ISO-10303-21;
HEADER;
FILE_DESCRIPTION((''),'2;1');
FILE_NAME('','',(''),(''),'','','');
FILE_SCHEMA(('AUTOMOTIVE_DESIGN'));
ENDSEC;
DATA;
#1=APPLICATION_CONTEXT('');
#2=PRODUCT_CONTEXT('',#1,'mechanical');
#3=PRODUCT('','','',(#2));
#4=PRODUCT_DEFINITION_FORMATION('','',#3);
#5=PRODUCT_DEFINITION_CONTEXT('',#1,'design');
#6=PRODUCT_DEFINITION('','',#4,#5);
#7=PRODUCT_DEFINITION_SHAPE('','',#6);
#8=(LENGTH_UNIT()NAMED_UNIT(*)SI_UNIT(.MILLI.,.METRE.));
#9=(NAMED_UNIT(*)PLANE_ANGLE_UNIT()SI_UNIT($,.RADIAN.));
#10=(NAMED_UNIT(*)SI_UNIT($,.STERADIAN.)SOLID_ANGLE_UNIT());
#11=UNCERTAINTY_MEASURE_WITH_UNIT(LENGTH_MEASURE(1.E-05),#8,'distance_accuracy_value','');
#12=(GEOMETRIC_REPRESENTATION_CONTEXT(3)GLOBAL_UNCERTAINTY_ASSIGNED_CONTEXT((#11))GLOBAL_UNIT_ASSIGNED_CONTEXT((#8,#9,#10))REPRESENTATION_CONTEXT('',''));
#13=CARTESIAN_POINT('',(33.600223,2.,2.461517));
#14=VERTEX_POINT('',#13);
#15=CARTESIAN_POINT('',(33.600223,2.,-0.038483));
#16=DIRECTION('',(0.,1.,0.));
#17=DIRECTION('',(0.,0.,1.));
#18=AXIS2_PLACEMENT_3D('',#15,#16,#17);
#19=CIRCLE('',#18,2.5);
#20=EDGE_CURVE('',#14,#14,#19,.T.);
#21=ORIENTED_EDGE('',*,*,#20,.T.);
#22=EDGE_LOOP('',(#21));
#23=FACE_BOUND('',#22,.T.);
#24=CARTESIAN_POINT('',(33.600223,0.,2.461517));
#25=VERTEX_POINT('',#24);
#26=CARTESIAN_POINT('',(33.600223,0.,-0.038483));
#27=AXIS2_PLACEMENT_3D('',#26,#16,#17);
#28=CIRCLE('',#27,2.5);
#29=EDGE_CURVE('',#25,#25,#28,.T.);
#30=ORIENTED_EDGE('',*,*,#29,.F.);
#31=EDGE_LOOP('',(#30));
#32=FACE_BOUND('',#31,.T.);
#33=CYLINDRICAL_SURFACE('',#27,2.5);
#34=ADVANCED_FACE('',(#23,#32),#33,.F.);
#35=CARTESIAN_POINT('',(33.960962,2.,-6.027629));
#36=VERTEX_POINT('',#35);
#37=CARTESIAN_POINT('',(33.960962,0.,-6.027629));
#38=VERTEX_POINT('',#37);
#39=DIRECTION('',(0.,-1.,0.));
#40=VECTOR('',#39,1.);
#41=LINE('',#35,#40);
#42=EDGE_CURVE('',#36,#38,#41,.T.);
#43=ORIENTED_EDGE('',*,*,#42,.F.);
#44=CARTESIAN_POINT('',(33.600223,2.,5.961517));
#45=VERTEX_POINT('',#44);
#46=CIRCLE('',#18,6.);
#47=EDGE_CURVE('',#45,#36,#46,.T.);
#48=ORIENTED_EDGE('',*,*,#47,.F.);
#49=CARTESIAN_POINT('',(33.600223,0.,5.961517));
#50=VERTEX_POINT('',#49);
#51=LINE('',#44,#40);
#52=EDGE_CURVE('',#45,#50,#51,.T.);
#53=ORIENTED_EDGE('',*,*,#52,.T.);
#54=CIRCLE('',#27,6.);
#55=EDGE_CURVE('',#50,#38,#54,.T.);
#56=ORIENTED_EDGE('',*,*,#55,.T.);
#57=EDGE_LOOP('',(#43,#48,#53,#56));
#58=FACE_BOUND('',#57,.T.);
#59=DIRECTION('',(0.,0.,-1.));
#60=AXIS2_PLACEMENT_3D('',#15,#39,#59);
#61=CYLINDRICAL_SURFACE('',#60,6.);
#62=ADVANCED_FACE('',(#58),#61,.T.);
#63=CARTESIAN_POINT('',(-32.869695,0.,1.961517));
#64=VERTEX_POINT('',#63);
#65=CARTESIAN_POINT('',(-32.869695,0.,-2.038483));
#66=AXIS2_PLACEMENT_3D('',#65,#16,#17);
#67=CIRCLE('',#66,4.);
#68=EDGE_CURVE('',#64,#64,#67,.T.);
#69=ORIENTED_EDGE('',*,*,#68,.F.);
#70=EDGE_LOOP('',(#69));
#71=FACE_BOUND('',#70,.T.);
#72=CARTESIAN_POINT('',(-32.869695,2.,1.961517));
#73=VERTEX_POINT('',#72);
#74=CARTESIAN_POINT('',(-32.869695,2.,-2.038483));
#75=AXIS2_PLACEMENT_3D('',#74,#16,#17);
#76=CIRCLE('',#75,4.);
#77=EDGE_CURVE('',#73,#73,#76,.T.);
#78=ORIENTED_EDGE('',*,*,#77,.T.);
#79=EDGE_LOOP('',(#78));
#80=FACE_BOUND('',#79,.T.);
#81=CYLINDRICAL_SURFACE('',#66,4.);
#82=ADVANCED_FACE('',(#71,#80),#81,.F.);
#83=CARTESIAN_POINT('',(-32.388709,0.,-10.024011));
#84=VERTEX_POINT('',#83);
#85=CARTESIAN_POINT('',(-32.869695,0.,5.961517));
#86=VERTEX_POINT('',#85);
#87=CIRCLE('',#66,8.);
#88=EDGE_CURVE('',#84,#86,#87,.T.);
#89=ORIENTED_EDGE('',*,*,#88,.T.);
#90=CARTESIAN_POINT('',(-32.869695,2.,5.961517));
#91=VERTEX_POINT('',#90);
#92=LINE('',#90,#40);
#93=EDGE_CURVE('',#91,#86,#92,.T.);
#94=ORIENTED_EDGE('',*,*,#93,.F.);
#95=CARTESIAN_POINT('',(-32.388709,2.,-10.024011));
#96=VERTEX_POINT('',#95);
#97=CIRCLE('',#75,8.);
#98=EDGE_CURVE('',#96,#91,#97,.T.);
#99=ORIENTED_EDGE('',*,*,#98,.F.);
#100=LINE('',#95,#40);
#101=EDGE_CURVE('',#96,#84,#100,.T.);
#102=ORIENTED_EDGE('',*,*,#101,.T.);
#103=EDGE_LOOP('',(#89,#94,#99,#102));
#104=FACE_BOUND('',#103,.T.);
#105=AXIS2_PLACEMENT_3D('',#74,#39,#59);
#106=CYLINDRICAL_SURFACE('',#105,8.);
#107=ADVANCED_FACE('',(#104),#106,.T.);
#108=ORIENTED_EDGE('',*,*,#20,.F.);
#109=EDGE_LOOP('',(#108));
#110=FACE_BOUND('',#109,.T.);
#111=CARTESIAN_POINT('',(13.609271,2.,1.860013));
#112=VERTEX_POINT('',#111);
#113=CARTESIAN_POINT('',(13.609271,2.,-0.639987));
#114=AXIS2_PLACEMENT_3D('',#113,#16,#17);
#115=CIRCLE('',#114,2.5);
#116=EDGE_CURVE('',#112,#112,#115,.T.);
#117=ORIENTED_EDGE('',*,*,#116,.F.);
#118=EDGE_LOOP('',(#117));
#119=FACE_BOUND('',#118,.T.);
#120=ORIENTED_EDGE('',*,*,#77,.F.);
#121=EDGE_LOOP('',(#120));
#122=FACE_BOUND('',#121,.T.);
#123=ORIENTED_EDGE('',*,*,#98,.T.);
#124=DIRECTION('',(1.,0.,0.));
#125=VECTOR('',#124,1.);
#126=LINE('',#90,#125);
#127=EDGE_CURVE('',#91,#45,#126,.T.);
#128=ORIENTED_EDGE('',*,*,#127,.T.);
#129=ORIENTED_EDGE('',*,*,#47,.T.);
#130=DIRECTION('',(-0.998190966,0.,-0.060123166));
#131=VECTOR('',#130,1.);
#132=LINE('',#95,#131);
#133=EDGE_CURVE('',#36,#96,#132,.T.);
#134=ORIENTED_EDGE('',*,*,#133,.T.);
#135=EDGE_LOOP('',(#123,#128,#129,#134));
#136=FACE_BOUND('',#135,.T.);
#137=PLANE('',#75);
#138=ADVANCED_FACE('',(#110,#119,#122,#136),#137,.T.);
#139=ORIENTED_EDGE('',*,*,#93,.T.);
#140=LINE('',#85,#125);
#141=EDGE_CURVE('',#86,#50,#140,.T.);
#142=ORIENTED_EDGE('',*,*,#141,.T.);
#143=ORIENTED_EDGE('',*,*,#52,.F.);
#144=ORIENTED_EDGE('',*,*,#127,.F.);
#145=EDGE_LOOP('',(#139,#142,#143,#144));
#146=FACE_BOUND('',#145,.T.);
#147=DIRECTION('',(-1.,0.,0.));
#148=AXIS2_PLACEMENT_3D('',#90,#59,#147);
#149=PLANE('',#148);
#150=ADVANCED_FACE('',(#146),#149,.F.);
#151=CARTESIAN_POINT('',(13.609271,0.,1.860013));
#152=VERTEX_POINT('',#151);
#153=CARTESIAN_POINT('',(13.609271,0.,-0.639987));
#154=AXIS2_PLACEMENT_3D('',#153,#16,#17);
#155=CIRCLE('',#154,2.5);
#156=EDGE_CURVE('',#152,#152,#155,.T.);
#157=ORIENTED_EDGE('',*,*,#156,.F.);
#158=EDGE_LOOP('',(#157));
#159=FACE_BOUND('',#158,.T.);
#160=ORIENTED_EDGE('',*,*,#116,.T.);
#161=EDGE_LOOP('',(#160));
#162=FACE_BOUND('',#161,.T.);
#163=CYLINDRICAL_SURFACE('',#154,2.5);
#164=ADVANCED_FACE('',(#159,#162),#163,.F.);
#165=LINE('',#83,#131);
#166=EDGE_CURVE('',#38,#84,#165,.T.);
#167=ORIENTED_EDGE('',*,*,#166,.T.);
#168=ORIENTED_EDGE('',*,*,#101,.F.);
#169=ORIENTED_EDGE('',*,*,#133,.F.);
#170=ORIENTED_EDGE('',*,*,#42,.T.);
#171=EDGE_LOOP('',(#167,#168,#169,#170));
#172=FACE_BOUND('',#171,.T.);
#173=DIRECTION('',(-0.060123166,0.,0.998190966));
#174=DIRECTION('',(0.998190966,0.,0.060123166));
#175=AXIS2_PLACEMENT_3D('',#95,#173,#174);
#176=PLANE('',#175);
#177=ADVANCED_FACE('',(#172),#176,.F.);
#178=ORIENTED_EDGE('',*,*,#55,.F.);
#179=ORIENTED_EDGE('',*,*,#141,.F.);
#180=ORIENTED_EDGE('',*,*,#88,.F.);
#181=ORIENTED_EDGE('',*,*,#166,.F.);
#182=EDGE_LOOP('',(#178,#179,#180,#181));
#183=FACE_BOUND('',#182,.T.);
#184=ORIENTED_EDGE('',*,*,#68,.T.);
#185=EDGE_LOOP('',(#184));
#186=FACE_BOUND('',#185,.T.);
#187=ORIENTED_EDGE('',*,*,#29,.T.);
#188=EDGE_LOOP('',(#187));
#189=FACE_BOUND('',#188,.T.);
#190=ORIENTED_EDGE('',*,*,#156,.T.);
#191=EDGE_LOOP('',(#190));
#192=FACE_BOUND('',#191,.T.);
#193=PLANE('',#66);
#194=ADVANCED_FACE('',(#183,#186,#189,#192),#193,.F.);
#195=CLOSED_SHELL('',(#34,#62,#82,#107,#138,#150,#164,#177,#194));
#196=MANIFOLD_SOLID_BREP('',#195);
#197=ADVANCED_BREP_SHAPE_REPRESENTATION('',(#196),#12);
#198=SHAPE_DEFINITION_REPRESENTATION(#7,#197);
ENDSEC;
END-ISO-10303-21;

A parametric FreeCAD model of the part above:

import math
import FreeCAD as App
import Part
import Sketcher

V = App.Vector

doc = App.newDocument("Part")
body = doc.addObject("PartDesign::Body", "Body")

# Sketch on XZ plane
sketch1 = body.newObject("Sketcher::SketchObject", "Sketch")
sketch1.AttachmentSupport = (doc.getObject("XZ_Plane"), [""])
sketch1.MapMode = "FlatFace"
sketch1.addGeometry(Part.LineSegment(V(34, -6, 0), V(-32, -10, 0)), False)
sketch1.addGeometry(Part.ArcOfCircle(Part.Circle(V(-33, -2, 0), V(0, 0, 1), 8), math.radians(90), math.radians(273)), False)
sketch1.addGeometry(Part.LineSegment(V(-33, 6, 0), V(34, 6, 0)), False)
sketch1.addGeometry(Part.ArcOfCircle(Part.Circle(V(34, 0, 0), V(0, 0, 1), 6), math.radians(-87), math.radians(90)), False)
sketch1.addConstraint(Sketcher.Constraint("Tangent", 0, 2, 1, 2))
sketch1.addConstraint(Sketcher.Constraint("Tangent", 1, 1, 2, 1))
sketch1.addConstraint(Sketcher.Constraint("Tangent", 2, 2, 3, 2))
sketch1.addConstraint(Sketcher.Constraint("Tangent", 3, 1, 0, 1))
sketch1.addConstraint(Sketcher.Constraint("Horizontal", 2))
sketch1.addConstraint(Sketcher.Constraint("Radius", 1, 8.0))
sketch1.addConstraint(Sketcher.Constraint("Radius", 3, 6.0))
sketch1.addConstraint(Sketcher.Constraint("DistanceX", 2, 1, 2, 2, 66.469918))
sketch1.addConstraint(Sketcher.Constraint("DistanceX", 0, 2, -1, 1, 32.388709))
sketch1.addConstraint(Sketcher.Constraint("DistanceY", 0, 2, -1, 1, 10.024011))
pad1 = body.newObject("PartDesign::Pad", "Pad")
pad1.Profile = sketch1
pad1.Length = 2
pad1.Reversed = True

# Sketch on XZ plane
sketch2 = body.newObject("Sketcher::SketchObject", "Sketch001")
sketch2.AttachmentSupport = (doc.getObject("XZ_Plane"), [""])
sketch2.MapMode = "FlatFace"
sketch2.AttachmentOffset = App.Placement(V(0, 0, -2), App.Rotation())
sketch2.addGeometry(Part.Circle(V(-32.9, -2, 0), V(0, 0, 1), 4), False)
sketch2.addGeometry(Part.Circle(V(33.6, 0, 0), V(0, 0, 1), 2.5), False)
sketch2.addGeometry(Part.Circle(V(13.6, -0.6, 0), V(0, 0, 1), 2.5), False)
sketch2.addConstraint(Sketcher.Constraint("Equal", 1, 2))
sketch2.addConstraint(Sketcher.Constraint("Diameter", 0, 8.0))
sketch2.addConstraint(Sketcher.Constraint("Diameter", 1, 5.0))
sketch2.addConstraint(Sketcher.Constraint("DistanceY", 0, 3, 1, 3, 2.0))
sketch2.addConstraint(Sketcher.Constraint("DistanceX", -1, 1, 2, 3, 13.609271))
sketch2.addConstraint(Sketcher.Constraint("DistanceX", 0, 3, 1, 3, 66.469918))
sketch2.addConstraint(Sketcher.Constraint("DistanceX", 0, 3, -1, 1, 32.869695))
sketch2.addConstraint(Sketcher.Constraint("DistanceY", 0, 3, -1, 1, 2.038483))
sketch2.addConstraint(Sketcher.Constraint("DistanceY", 2, 3, -1, 1, 0.639987))
pocket1 = body.newObject("PartDesign::Pocket", "Pocket")
pocket1.Profile = sketch2
pocket1.Length = 2
pocket1.Reversed = True

doc.recompute()
